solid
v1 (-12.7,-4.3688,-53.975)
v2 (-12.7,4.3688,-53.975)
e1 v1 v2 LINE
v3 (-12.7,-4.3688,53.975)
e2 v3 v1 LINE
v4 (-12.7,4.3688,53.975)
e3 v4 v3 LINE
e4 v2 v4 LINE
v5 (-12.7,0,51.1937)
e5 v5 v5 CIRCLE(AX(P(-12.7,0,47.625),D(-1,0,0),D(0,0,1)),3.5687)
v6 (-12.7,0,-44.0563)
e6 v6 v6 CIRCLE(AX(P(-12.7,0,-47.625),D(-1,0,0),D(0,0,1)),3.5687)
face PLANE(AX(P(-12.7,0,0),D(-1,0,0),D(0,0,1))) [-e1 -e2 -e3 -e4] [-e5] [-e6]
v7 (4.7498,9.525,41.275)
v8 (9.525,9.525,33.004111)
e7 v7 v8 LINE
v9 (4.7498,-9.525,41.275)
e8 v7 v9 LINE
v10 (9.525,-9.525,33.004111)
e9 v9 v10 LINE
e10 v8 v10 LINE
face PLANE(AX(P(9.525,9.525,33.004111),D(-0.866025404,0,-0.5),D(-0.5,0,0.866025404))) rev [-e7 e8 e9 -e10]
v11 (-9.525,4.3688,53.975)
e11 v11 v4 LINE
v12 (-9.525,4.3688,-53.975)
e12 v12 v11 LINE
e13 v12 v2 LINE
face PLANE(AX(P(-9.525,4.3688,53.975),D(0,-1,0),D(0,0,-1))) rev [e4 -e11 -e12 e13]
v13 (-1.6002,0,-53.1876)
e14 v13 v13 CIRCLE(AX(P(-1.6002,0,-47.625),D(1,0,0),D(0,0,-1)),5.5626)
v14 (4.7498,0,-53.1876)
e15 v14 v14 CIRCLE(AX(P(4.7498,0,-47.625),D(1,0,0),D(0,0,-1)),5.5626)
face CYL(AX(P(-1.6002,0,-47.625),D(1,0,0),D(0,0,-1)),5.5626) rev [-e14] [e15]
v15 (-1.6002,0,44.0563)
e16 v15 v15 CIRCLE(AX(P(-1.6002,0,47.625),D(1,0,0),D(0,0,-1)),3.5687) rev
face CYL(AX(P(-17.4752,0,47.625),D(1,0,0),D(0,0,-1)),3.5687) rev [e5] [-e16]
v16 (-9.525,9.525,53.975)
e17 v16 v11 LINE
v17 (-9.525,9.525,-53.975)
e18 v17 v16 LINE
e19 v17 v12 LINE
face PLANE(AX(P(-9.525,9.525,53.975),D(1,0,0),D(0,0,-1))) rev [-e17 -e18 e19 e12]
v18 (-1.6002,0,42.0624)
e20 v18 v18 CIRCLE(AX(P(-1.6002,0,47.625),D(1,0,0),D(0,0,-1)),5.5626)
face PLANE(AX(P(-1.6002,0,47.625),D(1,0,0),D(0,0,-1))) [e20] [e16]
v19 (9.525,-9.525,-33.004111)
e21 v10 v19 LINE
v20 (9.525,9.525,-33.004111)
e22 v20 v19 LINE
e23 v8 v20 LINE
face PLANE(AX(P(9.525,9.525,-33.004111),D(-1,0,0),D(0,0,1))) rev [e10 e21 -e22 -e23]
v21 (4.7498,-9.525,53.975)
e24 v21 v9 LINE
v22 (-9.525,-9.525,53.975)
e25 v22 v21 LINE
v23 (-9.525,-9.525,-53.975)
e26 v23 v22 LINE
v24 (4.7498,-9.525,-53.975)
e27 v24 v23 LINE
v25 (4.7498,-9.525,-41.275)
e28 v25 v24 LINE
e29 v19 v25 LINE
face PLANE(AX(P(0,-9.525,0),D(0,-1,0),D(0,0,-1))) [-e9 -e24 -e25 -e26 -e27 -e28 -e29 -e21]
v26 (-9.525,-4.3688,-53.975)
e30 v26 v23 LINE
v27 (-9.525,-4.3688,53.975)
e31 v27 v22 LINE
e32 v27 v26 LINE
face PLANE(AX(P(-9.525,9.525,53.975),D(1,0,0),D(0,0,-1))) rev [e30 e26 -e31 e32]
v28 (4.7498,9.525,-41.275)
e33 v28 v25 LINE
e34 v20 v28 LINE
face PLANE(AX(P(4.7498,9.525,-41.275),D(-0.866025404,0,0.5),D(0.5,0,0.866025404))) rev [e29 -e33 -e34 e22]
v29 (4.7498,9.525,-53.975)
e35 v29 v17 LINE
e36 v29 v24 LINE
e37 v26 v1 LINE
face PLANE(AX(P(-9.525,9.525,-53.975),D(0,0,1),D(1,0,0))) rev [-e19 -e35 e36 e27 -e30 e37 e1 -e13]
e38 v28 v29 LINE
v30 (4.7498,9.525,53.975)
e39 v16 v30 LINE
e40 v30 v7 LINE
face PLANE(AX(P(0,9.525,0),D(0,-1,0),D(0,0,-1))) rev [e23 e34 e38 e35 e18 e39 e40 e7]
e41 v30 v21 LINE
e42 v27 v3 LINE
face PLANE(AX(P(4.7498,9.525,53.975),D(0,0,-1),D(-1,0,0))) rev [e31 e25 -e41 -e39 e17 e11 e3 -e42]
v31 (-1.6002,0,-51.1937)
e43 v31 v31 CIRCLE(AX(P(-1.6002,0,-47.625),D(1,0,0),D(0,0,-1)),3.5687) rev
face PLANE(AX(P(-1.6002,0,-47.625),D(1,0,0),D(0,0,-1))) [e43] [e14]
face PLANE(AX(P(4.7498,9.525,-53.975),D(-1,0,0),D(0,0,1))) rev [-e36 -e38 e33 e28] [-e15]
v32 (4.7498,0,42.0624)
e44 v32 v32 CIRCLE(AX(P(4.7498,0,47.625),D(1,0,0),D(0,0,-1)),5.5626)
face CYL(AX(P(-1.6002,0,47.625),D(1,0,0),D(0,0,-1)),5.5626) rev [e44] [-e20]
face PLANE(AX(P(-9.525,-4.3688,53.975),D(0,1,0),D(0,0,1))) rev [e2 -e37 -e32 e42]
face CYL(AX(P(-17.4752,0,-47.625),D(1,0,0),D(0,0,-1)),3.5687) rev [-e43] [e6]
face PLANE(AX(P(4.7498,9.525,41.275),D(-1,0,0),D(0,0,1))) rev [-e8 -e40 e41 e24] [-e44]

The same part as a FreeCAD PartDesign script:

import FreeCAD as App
import Part
import Sketcher
Q = App.Units.Quantity


def add_polygon(sketch, points):
    """Adds a closed chain of lines whose ends are joined by coincident constraints."""
    first, n = sketch.GeometryCount, len(points)
    for a, b in zip(points, points[1:] + points[:1]):
        sketch.addGeometry(Part.LineSegment(App.Vector(*a, 0), App.Vector(*b, 0)), False)
    for i in range(n):
        sketch.addConstraint(Sketcher.Constraint("Coincident", first + i, 2, first + (i + 1) % n, 1))

doc = App.newDocument("Part")
body = doc.addObject("PartDesign::Body", "Body")

sketch1 = body.newObject("Sketcher::SketchObject", "Sketch")
sketch1.AttachmentSupport = (doc.getObject("XZ_Plane"), [""])
sketch1.MapMode = "FlatFace"
add_polygon(sketch1, [(-10, -54), (-10, 54), (5, 54), (5, 41), (10, 33), (10, -33), (5, -41), (5, -54)])
sketch1.addConstraint([
    Sketcher.Constraint("Vertical", 0),
    Sketcher.Constraint("Horizontal", 1),
    Sketcher.Constraint("Vertical", 2),
    Sketcher.Constraint("Vertical", 4),
    Sketcher.Constraint("Vertical", 6),
    Sketcher.Constraint("Horizontal", 7),
    Sketcher.Constraint("Symmetric", 2, 2, 5, 2, -1),
    Sketcher.Constraint("Equal", 2, 6),
    Sketcher.Constraint("Equal", 3, 5),
    Sketcher.Constraint("DistanceY", 2, 2, 2, 1, Q("0.5 in")),
    Sketcher.Constraint("Angle", 3, Q("-60 deg")),
    Sketcher.Constraint("DistanceY", 0, 1, 0, 2, Q("4.25 in")),
    Sketcher.Constraint("DistanceX", 1, 1, 1, 2, Q("0.562 in")),
    Sketcher.Constraint("DistanceX", 0, 2, 3, 2, Q("0.75 in")),
    Sketcher.Constraint("DistanceX", 0, 2, -1, 1, Q("0.375 in")),
])
pad1 = body.newObject("PartDesign::Pad", "Pad")
pad1.Profile = sketch1
pad1.Length = Q("0.75 in")
pad1.Midplane = True

sketch2 = body.newObject("Sketcher::SketchObject", "Sketch001")
sketch2.AttachmentSupport = (doc.getObject("YZ_Plane"), [""])
sketch2.MapMode = "FlatFace"
sketch2.AttachmentOffset = App.Placement(App.Vector(0, 0, -0.5 * 25.4), App.Rotation())
add_polygon(sketch2, [(4, 54), (-4, 54), (-4, -54), (4, -54)])
sketch2.addConstraint([
    Sketcher.Constraint("Horizontal", 0),
    Sketcher.Constraint("Vertical", 1),
    Sketcher.Constraint("Horizontal", 2),
    Sketcher.Constraint("Vertical", 3),
    Sketcher.Constraint("Symmetric", 0, 2, 2, 2, -1, 1),
    Sketcher.Constraint("DistanceY", 1, 2, 1, 1, Q("4.25 in")),
    Sketcher.Constraint("DistanceX", 0, 2, 0, 1, Q("0.344 in")),
])
pad2 = body.newObject("PartDesign::Pad", "Pad001")
pad2.Profile = sketch2
pad2.Length = Q("0.125 in")

sketch3 = body.newObject("Sketcher::SketchObject", "Sketch002")
sketch3.AttachmentSupport = (doc.getObject("YZ_Plane"), [""])
sketch3.MapMode = "FlatFace"
sketch3.AttachmentOffset = App.Placement(App.Vector(0, 0, 0.187 * 25.4), App.Rotation())
sketch3.addGeometry([
    Part.Circle(App.Vector(0, 47.6, 0), App.Vector(0, 0, 1), 3.6),
    Part.Circle(App.Vector(0, -47.6, 0), App.Vector(0, 0, 1), 3.6),
], False)
sketch3.addConstraint([
    Sketcher.Constraint("Equal", 0, 1),
    Sketcher.Constraint("Symmetric", 0, 3, 1, 3, -1, 1),
    Sketcher.Constraint("PointOnObject", 0, 3, -2),
    Sketcher.Constraint("Diameter", 0, Q("0.281 in")),
    Sketcher.Constraint("DistanceY", 1, 3, 0, 3, Q("3.75 in")),
])
pocket1 = body.newObject("PartDesign::Pocket", "Pocket")
pocket1.Profile = sketch3
pocket1.Length = Q("0.875 in")

sketch4 = body.newObject("Sketcher::SketchObject", "Sketch003")
sketch4.AttachmentSupport = (doc.getObject("YZ_Plane"), [""])
sketch4.MapMode = "FlatFace"
sketch4.AttachmentOffset = App.Placement(App.Vector(0, 0, 0.187 * 25.4), App.Rotation())
sketch4.addGeometry([
    Part.Circle(App.Vector(0, 48, 0), App.Vector(0, 0, 1), 6),
    Part.Circle(App.Vector(0, -48, 0), App.Vector(0, 0, 1), 6),
], False)
sketch4.addConstraint([
    Sketcher.Constraint("Equal", 0, 1),
    Sketcher.Constraint("Symmetric", 0, 3, 1, 3, -1, 1),
    Sketcher.Constraint("PointOnObject", 0, 3, -2),
    Sketcher.Constraint("Diameter", 0, Q("0.438 in")),
    Sketcher.Constraint("DistanceY", 1, 3, 0, 3, Q("3.75 in")),
])
pocket2 = body.newObject("PartDesign::Pocket", "Pocket001")
pocket2.Profile = sketch4
pocket2.Length = Q("0.25 in")

doc.recompute()
